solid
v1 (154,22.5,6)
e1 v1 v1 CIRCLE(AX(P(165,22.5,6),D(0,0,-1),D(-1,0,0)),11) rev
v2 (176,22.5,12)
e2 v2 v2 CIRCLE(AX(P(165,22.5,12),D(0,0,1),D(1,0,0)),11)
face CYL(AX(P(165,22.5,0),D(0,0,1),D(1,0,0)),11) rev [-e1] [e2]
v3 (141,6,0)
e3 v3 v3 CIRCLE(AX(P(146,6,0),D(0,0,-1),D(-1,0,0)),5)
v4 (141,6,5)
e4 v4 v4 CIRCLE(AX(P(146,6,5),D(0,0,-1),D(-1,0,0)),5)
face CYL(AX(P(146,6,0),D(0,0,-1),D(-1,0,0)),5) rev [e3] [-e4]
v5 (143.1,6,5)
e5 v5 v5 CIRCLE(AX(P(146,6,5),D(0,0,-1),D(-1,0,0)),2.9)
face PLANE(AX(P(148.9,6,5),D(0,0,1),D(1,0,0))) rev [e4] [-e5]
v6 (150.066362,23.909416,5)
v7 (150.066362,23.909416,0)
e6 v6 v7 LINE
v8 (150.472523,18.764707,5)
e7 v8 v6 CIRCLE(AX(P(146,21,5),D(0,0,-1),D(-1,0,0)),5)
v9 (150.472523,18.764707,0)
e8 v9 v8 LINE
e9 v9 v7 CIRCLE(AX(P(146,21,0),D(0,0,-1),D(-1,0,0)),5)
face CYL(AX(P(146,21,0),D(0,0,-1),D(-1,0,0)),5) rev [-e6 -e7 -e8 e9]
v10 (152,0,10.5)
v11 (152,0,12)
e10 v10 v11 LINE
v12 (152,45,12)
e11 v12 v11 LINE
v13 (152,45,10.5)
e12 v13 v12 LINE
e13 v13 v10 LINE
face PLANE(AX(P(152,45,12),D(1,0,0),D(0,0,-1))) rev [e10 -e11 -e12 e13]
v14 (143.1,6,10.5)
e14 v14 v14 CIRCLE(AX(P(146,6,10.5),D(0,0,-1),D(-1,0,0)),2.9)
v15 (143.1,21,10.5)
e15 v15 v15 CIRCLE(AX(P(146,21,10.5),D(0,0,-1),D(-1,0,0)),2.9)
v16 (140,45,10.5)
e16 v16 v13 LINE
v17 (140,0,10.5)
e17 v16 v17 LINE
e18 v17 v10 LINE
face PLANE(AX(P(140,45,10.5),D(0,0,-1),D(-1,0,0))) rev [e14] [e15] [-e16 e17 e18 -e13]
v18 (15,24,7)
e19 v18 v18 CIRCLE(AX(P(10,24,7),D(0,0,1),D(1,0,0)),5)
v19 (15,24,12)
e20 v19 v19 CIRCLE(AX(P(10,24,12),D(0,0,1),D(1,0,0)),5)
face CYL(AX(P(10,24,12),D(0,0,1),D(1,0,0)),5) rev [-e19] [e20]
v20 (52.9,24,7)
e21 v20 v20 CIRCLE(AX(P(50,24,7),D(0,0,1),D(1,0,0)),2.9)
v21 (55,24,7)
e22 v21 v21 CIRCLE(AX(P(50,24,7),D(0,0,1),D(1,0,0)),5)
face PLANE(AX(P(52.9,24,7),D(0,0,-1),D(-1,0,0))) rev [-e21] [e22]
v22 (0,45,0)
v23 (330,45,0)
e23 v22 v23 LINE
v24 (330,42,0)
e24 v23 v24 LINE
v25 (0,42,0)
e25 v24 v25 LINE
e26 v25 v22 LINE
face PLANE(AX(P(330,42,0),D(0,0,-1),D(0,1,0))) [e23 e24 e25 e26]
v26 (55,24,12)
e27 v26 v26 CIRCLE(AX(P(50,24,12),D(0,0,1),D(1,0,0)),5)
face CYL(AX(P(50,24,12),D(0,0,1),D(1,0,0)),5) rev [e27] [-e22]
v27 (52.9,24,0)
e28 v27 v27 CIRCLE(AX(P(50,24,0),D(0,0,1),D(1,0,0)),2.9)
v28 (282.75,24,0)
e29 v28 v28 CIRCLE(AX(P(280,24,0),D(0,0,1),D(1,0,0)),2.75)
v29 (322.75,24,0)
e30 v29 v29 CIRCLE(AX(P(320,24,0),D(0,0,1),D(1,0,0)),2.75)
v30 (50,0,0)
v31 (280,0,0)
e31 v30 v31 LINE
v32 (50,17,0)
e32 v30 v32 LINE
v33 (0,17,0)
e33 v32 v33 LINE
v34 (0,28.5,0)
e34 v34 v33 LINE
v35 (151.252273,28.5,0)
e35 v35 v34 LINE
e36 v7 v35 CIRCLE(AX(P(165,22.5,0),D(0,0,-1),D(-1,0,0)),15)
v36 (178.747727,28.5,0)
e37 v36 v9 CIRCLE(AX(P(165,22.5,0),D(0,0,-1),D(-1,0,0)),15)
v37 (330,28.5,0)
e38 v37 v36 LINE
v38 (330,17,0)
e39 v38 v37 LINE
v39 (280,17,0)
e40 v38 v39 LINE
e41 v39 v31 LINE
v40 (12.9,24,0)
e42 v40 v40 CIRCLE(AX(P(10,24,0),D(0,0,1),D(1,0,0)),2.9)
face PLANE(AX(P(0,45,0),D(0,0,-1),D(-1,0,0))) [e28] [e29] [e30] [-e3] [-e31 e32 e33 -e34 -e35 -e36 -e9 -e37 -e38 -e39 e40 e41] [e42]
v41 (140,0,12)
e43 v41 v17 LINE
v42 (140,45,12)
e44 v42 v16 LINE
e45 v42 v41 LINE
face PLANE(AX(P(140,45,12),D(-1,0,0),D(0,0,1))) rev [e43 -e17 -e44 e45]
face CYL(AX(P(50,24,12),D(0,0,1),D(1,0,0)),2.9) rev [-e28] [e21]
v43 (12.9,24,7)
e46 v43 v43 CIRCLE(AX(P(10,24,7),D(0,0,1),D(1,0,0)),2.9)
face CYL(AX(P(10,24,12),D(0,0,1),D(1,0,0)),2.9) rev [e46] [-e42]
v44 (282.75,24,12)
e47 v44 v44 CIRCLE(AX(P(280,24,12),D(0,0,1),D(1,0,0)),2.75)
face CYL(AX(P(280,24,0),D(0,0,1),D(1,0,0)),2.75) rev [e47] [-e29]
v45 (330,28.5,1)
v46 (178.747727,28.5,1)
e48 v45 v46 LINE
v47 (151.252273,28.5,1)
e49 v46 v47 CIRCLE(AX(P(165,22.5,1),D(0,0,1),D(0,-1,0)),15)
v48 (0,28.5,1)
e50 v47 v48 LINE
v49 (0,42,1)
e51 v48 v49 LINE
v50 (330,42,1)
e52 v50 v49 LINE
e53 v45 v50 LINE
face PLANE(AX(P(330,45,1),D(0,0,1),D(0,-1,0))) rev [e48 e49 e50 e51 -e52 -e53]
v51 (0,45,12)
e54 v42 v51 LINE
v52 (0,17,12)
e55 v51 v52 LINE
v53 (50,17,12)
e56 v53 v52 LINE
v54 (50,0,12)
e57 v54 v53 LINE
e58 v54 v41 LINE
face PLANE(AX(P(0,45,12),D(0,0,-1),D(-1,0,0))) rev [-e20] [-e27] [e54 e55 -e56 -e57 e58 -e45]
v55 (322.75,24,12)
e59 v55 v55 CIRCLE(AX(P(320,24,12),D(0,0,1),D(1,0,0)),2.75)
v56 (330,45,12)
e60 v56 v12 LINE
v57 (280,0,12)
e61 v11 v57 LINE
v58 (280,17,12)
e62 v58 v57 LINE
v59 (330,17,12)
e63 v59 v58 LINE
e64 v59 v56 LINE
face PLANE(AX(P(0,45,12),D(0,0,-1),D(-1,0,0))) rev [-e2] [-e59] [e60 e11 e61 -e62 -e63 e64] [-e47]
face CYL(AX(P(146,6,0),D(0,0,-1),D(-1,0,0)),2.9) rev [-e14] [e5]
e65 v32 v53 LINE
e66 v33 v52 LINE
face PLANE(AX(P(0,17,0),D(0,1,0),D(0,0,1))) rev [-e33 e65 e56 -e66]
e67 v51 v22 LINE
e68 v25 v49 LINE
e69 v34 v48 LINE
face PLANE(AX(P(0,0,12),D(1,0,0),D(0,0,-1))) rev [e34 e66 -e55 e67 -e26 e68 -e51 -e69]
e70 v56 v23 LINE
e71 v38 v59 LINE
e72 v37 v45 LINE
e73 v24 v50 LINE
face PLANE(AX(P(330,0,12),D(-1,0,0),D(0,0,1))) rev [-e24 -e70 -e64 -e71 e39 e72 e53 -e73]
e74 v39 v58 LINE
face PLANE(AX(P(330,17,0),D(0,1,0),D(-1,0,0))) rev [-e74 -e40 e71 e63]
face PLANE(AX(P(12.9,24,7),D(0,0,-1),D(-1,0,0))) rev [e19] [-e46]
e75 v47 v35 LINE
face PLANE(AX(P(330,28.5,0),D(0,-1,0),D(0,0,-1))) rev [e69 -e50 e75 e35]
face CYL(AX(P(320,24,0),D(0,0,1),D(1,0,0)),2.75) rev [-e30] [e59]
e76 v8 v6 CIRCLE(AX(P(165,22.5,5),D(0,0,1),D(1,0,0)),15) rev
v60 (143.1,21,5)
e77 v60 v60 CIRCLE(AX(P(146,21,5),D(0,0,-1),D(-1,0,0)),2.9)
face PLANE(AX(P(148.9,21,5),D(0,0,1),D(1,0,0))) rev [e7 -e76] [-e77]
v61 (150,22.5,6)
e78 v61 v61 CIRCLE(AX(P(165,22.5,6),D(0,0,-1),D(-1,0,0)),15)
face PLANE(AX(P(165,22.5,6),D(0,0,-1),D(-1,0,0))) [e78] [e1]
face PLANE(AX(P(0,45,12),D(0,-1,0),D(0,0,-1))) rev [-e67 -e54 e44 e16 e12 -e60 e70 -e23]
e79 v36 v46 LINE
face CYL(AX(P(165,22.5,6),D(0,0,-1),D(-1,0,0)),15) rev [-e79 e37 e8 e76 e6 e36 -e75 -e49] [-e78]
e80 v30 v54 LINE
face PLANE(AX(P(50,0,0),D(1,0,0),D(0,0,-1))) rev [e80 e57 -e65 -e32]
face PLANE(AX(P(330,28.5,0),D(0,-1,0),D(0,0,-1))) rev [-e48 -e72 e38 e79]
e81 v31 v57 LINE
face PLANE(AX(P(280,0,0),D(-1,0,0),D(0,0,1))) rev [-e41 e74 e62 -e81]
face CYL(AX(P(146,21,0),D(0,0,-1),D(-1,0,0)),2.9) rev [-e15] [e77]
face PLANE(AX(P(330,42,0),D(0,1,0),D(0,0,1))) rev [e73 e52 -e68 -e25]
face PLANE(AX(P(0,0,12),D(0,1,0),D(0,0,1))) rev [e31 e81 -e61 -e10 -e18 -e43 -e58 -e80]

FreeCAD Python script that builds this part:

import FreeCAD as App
import Part
import Sketcher

doc = App.newDocument("Part")
body = doc.addObject("PartDesign::Body", "Body")

sketch1 = body.newObject("Sketcher::SketchObject", "Sketch")
sketch1.AttachmentSupport = (doc.getObject("XY_Plane"), [""])
sketch1.MapMode = "FlatFace"
sketch1.addGeometry(Part.LineSegment(App.Vector(0, 45, 0), App.Vector(0, 0, 0)), False)
sketch1.addGeometry(Part.LineSegment(App.Vector(0, 0, 0), App.Vector(330, 0, 0)), False)
sketch1.addGeometry(Part.LineSegment(App.Vector(330, 0, 0), App.Vector(330, 45, 0)), False)
sketch1.addGeometry(Part.LineSegment(App.Vector(330, 45, 0), App.Vector(0, 45, 0)), False)
sketch1.addConstraint(Sketcher.Constraint("Coincident", 0, 2, 1, 1))
sketch1.addConstraint(Sketcher.Constraint("Coincident", 1, 2, 2, 1))
sketch1.addConstraint(Sketcher.Constraint("Coincident", 2, 2, 3, 1))
sketch1.addConstraint(Sketcher.Constraint("Coincident", 3, 2, 0, 1))
sketch1.addConstraint(Sketcher.Constraint("Vertical", 0))
sketch1.addConstraint(Sketcher.Constraint("Horizontal", 1))
sketch1.addConstraint(Sketcher.Constraint("Vertical", 2))
sketch1.addConstraint(Sketcher.Constraint("Horizontal", 3))
sketch1.addConstraint(Sketcher.Constraint("Coincident", 0, 2, -1, 1))
sketch1.addConstraint(Sketcher.Constraint("DistanceX", 1, 1, 1, 2, 330.0))
sketch1.addConstraint(Sketcher.Constraint("DistanceY", 0, 2, 0, 1, 45.0))
pad1 = body.newObject("PartDesign::Pad", "Pad")
pad1.Profile = sketch1
pad1.Length = 12

sketch2 = body.newObject("Sketcher::SketchObject", "Sketch001")
sketch2.AttachmentSupport = (doc.getObject("XY_Plane"), [""])
sketch2.MapMode = "FlatFace"
sketch2.AttachmentOffset = App.Placement(App.Vector(0, 0, 12), App.Rotation())
sketch2.addGeometry(Part.Circle(App.Vector(10, 24, 0), App.Vector(0, 0, 1), 2.9), False)
sketch2.addGeometry(Part.Circle(App.Vector(50, 24, 0), App.Vector(0, 0, 1), 2.9), False)
sketch2.addConstraint(Sketcher.Constraint("Equal", 0, 1))
sketch2.addConstraint(Sketcher.Constraint("Horizontal", 0, 3, 1, 3))
sketch2.addConstraint(Sketcher.Constraint("Diameter", 0, 5.8))
sketch2.addConstraint(Sketcher.Constraint("DistanceX", -1, 1, 0, 3, 10.0))
sketch2.addConstraint(Sketcher.Constraint("DistanceY", -1, 1, 0, 3, 24.0))
sketch2.addConstraint(Sketcher.Constraint("DistanceX", -1, 1, 1, 3, 50.0))
doc.recompute()
hole = body.newObject("PartDesign::Hole", "Hole")
hole.Profile = sketch2
hole.ThreadType = "None"
hole.Diameter = 5.8
hole.DepthType = "ThroughAll"
hole.HoleCutType = "Counterbore"
hole.HoleCutDiameter = 10
hole.HoleCutDepth = 5

sketch3 = body.newObject("Sketcher::SketchObject", "Sketch002")
sketch3.AttachmentSupport = (doc.getObject("YZ_Plane"), [""])
sketch3.MapMode = "FlatFace"
sketch3.addGeometry(Part.LineSegment(App.Vector(45, 0, 0), App.Vector(28.5, 0, 0)), False)
sketch3.addGeometry(Part.LineSegment(App.Vector(28.5, 0, 0), App.Vector(28.5, 1, 0)), False)
sketch3.addGeometry(Part.LineSegment(App.Vector(28.5, 1, 0), App.Vector(45, 1, 0)), False)
sketch3.addGeometry(Part.LineSegment(App.Vector(45, 1, 0), App.Vector(45, 0, 0)), False)
sketch3.addConstraint(Sketcher.Constraint("Coincident", 0, 2, 1, 1))
sketch3.addConstraint(Sketcher.Constraint("Coincident", 1, 2, 2, 1))
sketch3.addConstraint(Sketcher.Constraint("Coincident", 2, 2, 3, 1))
sketch3.addConstraint(Sketcher.Constraint("Coincident", 3, 2, 0, 1))
sketch3.addConstraint(Sketcher.Constraint("Horizontal", 0))
sketch3.addConstraint(Sketcher.Constraint("Vertical", 1))
sketch3.addConstraint(Sketcher.Constraint("Horizontal", 2))
sketch3.addConstraint(Sketcher.Constraint("Vertical", 3))
sketch3.addConstraint(Sketcher.Constraint("PointOnObject", 0, 2, -1))
sketch3.addConstraint(Sketcher.Constraint("DistanceY", 1, 1, 1, 2, 1.0))
sketch3.addConstraint(Sketcher.Constraint("DistanceX", 0, 2, 0, 1, 16.5))
sketch3.addConstraint(Sketcher.Constraint("DistanceX", -1, 1, 2, 2, 45.0))
pocket1 = body.newObject("PartDesign::Pocket", "Pocket")
pocket1.Profile = sketch3
pocket1.Type = "ThroughAll"
pocket1.Reversed = True

sketch4 = body.newObject("Sketcher::SketchObject", "Sketch003")
sketch4.AttachmentSupport = (doc.getObject("XY_Plane"), [""])
sketch4.MapMode = "FlatFace"
sketch4.AttachmentOffset = App.Placement(App.Vector(0, 0, 1), App.Rotation())
sketch4.addGeometry(Part.LineSegment(App.Vector(330, 45, 0), App.Vector(330, 42, 0)), False)
sketch4.addGeometry(Part.LineSegment(App.Vector(330, 42, 0), App.Vector(0, 42, 0)), False)
sketch4.addGeometry(Part.LineSegment(App.Vector(0, 42, 0), App.Vector(0, 45, 0)), False)
sketch4.addGeometry(Part.LineSegment(App.Vector(0, 45, 0), App.Vector(330, 45, 0)), False)
sketch4.addConstraint(Sketcher.Constraint("Coincident", 0, 2, 1, 1))
sketch4.addConstraint(Sketcher.Constraint("Coincident", 1, 2, 2, 1))
sketch4.addConstraint(Sketcher.Constraint("Coincident", 2, 2, 3, 1))
sketch4.addConstraint(Sketcher.Constraint("Coincident", 3, 2, 0, 1))
sketch4.addConstraint(Sketcher.Constraint("Vertical", 0))
sketch4.addConstraint(Sketcher.Constraint("Horizontal", 1))
sketch4.addConstraint(Sketcher.Constraint("Vertical", 2))
sketch4.addConstraint(Sketcher.Constraint("Horizontal", 3))
sketch4.addConstraint(Sketcher.Constraint("PointOnObject", 1, 2, -2))
sketch4.addConstraint(Sketcher.Constraint("DistanceX", 1, 2, 1, 1, 330.0))
sketch4.addConstraint(Sketcher.Constraint("DistanceY", 0, 2, 0, 1, 3.0))
sketch4.addConstraint(Sketcher.Constraint("DistanceY", -1, 1, 0, 2, 42.0))
pad2 = body.newObject("PartDesign::Pad", "Pad001")
pad2.Profile = sketch4
pad2.Length = 1
pad2.Reversed = True

sketch5 = body.newObject("Sketcher::SketchObject", "Sketch004")
sketch5.AttachmentSupport = (doc.getObject("XY_Plane"), [""])
sketch5.MapMode = "FlatFace"
sketch5.AttachmentOffset = App.Placement(App.Vector(0, 0, 12), App.Rotation())
sketch5.addGeometry(Part.Circle(App.Vector(165, 22, 0), App.Vector(0, 0, 1), 11), False)
sketch5.addConstraint(Sketcher.Constraint("Diameter", 0, 22.0))
sketch5.addConstraint(Sketcher.Constraint("DistanceX", -1, 1, 0, 3, 165.0))
sketch5.addConstraint(Sketcher.Constraint("DistanceY", -1, 1, 0, 3, 22.5))
pocket2 = body.newObject("PartDesign::Pocket", "Pocket001")
pocket2.Profile = sketch5
pocket2.Type = "ThroughAll"

sketch6 = body.newObject("Sketcher::SketchObject", "Sketch005")
sketch6.AttachmentSupport = (doc.getObject("XY_Plane"), [""])
sketch6.MapMode = "FlatFace"
sketch6.AttachmentOffset = App.Placement(App.Vector(0, 0, 12), App.Rotation())
sketch6.addGeometry(Part.LineSegment(App.Vector(0, 17, 0), App.Vector(0, 0, 0)), False)
sketch6.addGeometry(Part.LineSegment(App.Vector(0, 0, 0), App.Vector(50, 0, 0)), False)
sketch6.addGeometry(Part.LineSegment(App.Vector(50, 0, 0), App.Vector(50, 17, 0)), False)
sketch6.addGeometry(Part.LineSegment(App.Vector(50, 17, 0), App.Vector(0, 17, 0)), False)
sketch6.addGeometry(Part.LineSegment(App.Vector(280, 17, 0), App.Vector(280, 0, 0)), False)
sketch6.addGeometry(Part.LineSegment(App.Vector(280, 0, 0), App.Vector(330, 0, 0)), False)
sketch6.addGeometry(Part.LineSegment(App.Vector(330, 0, 0), App.Vector(330, 17, 0)), False)
sketch6.addGeometry(Part.LineSegment(App.Vector(330, 17, 0), App.Vector(280, 17, 0)), False)
sketch6.addConstraint(Sketcher.Constraint("Coincident", 0, 2, 1, 1))
sketch6.addConstraint(Sketcher.Constraint("Coincident", 1, 2, 2, 1))
sketch6.addConstraint(Sketcher.Constraint("Coincident", 2, 2, 3, 1))
sketch6.addConstraint(Sketcher.Constraint("Coincident", 3, 2, 0, 1))
sketch6.addConstraint(Sketcher.Constraint("Coincident", 4, 2, 5, 1))
sketch6.addConstraint(Sketcher.Constraint("Coincident", 5, 2, 6, 1))
sketch6.addConstraint(Sketcher.Constraint("Coincident", 6, 2, 7, 1))
sketch6.addConstraint(Sketcher.Constraint("Coincident", 7, 2, 4, 1))
sketch6.addConstraint(Sketcher.Constraint("Vertical", 0))
sketch6.addConstraint(Sketcher.Constraint("Horizontal", 1))
sketch6.addConstraint(Sketcher.Constraint("Vertical", 2))
sketch6.addConstraint(Sketcher.Constraint("Horizontal", 3))
sketch6.addConstraint(Sketcher.Constraint("Vertical", 4))
sketch6.addConstraint(Sketcher.Constraint("Horizontal", 5))
sketch6.addConstraint(Sketcher.Constraint("Vertical", 6))
sketch6.addConstraint(Sketcher.Constraint("Horizontal", 7))
sketch6.addConstraint(Sketcher.Constraint("Coincident", 0, 2, -1, 1))
sketch6.addConstraint(Sketcher.Constraint("PointOnObject", 4, 2, -1))
sketch6.addConstraint(Sketcher.Constraint("Horizontal", 3, 2, 6, 2))
sketch6.addConstraint(Sketcher.Constraint("Equal", 3, 5))
sketch6.addConstraint(Sketcher.Constraint("DistanceX", 1, 1, 1, 2, 50.0))
sketch6.addConstraint(Sketcher.Constraint("DistanceY", 0, 2, 0, 1, 17.0))
sketch6.addConstraint(Sketcher.Constraint("DistanceX", -1, 1, 4, 2, 280.0))
pocket3 = body.newObject("PartDesign::Pocket", "Pocket002")
pocket3.Profile = sketch6
pocket3.Type = "ThroughAll"

sketch7 = body.newObject("Sketcher::SketchObject", "Sketch006")
sketch7.AttachmentSupport = (doc.getObject("XZ_Plane"), [""])
sketch7.MapMode = "FlatFace"
sketch7.addGeometry(Part.LineSegment(App.Vector(140, 12, 0), App.Vector(140, 10.5, 0)), False)
sketch7.addGeometry(Part.LineSegment(App.Vector(140, 10.5, 0), App.Vector(152, 10.5, 0)), False)
sketch7.addGeometry(Part.LineSegment(App.Vector(152, 10.5, 0), App.Vector(152, 12, 0)), False)
sketch7.addGeometry(Part.LineSegment(App.Vector(152, 12, 0), App.Vector(140, 12, 0)), False)
sketch7.addConstraint(Sketcher.Constraint("Coincident", 0, 2, 1, 1))
sketch7.addConstraint(Sketcher.Constraint("Coincident", 1, 2, 2, 1))
sketch7.addConstraint(Sketcher.Constraint("Coincident", 2, 2, 3, 1))
sketch7.addConstraint(Sketcher.Constraint("Coincident", 3, 2, 0, 1))
sketch7.addConstraint(Sketcher.Constraint("Vertical", 0))
sketch7.addConstraint(Sketcher.Constraint("Horizontal", 1))
sketch7.addConstraint(Sketcher.Constraint("Vertical", 2))
sketch7.addConstraint(Sketcher.Constraint("Horizontal", 3))
sketch7.addConstraint(Sketcher.Constraint("DistanceX", 1, 1, 1, 2, 12.0))
sketch7.addConstraint(Sketcher.Constraint("DistanceY", 0, 2, 0, 1, 1.5))
sketch7.addConstraint(Sketcher.Constraint("DistanceX", -1, 1, 0, 2, 140.0))
sketch7.addConstraint(Sketcher.Constraint("DistanceY", -1, 1, 2, 2, 12.0))
pocket4 = body.newObject("PartDesign::Pocket", "Pocket003")
pocket4.Profile = sketch7
pocket4.Type = "ThroughAll"

sketch8 = body.newObject("Sketcher::SketchObject", "Sketch007")
sketch8.AttachmentSupport = (doc.getObject("XY_Plane"), [""])
sketch8.MapMode = "FlatFace"
sketch8.addGeometry(Part.Circle(App.Vector(165, 22, 0), App.Vector(0, 0, 1), 15), False)
sketch8.addConstraint(Sketcher.Constraint("Diameter", 0, 30.0))
sketch8.addConstraint(Sketcher.Constraint("DistanceX", -1, 1, 0, 3, 165.0))
sketch8.addConstraint(Sketcher.Constraint("DistanceY", -1, 1, 0, 3, 22.5))
pocket5 = body.newObject("PartDesign::Pocket", "Pocket004")
pocket5.Profile = sketch8
pocket5.Length = 6
pocket5.Reversed = True

sketch9 = body.newObject("Sketcher::SketchObject", "Sketch008")
sketch9.AttachmentSupport = (doc.getObject("XY_Plane"), [""])
sketch9.MapMode = "FlatFace"
sketch9.AttachmentOffset = App.Placement(App.Vector(0, 0, 12), App.Rotation())
sketch9.addGeometry(Part.Circle(App.Vector(280, 24, 0), App.Vector(0, 0, 1), 2.8), False)
sketch9.addGeometry(Part.Circle(App.Vector(320, 24, 0), App.Vector(0, 0, 1), 2.8), False)
sketch9.addConstraint(Sketcher.Constraint("Equal", 0, 1))
sketch9.addConstraint(Sketcher.Constraint("Horizontal", 0, 3, 1, 3))
sketch9.addConstraint(Sketcher.Constraint("Diameter", 0, 5.5))
sketch9.addConstraint(Sketcher.Constraint("DistanceX", -1, 1, 0, 3, 280.0))
sketch9.addConstraint(Sketcher.Constraint("DistanceY", -1, 1, 0, 3, 24.0))
sketch9.addConstraint(Sketcher.Constraint("DistanceX", -1, 1, 1, 3, 320.0))
pocket6 = body.newObject("PartDesign::Pocket", "Pocket005")
pocket6.Profile = sketch9
pocket6.Type = "ThroughAll"

sketch10 = body.newObject("Sketcher::SketchObject", "Sketch009")
sketch10.AttachmentSupport = (doc.getObject("XY_Plane"), [""])
sketch10.MapMode = "FlatFace"
sketch10.addGeometry(Part.Circle(App.Vector(146, 6, 0), App.Vector(0, 0, 1), 2.9), False)
sketch10.addGeometry(Part.Circle(App.Vector(146, 21, 0), App.Vector(0, 0, 1), 2.9), False)
sketch10.addConstraint(Sketcher.Constraint("Equal", 0, 1))
sketch10.addConstraint(Sketcher.Constraint("Vertical", 0, 3, 1, 3))
sketch10.addConstraint(Sketcher.Constraint("Diameter", 0, 5.8))
sketch10.addConstraint(Sketcher.Constraint("DistanceX", -1, 1, 0, 3, 146.0))
sketch10.addConstraint(Sketcher.Constraint("DistanceY", -1, 1, 0, 3, 6.0))
sketch10.addConstraint(Sketcher.Constraint("DistanceY", -1, 1, 1, 3, 21.0))
doc.recompute()
hole2 = body.newObject("PartDesign::Hole", "Hole001")
hole2.Profile = sketch10
hole2.ThreadType = "None"
hole2.Diameter = 5.8
hole2.DepthType = "ThroughAll"
hole2.HoleCutType = "Counterbore"
hole2.HoleCutDiameter = 10
hole2.HoleCutDepth = 5
hole2.Reversed = True

doc.recompute()
